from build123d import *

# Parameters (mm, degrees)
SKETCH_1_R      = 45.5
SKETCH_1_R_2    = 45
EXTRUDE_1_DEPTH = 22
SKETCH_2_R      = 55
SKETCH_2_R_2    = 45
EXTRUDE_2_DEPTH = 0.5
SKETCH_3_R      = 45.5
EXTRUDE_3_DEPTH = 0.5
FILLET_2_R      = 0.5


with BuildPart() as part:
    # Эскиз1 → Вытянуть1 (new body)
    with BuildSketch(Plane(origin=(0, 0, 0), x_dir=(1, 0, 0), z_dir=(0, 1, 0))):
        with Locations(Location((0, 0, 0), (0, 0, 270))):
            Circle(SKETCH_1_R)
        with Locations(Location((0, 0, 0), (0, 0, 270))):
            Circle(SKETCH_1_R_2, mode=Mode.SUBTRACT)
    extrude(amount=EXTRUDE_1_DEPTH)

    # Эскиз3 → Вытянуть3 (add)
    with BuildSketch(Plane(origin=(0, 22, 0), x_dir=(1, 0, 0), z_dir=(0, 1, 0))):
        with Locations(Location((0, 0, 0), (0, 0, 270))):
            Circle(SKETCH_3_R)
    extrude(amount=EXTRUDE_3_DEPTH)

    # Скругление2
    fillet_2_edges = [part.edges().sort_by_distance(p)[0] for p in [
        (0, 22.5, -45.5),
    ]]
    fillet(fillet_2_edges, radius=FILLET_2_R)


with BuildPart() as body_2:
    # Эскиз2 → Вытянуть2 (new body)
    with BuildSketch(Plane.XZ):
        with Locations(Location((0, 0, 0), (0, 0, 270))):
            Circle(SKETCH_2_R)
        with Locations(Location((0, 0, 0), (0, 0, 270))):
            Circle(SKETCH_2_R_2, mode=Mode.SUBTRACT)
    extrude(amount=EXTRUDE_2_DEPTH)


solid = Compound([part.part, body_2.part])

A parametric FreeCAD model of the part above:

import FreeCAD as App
import Part
import Sketcher

V = App.Vector


def edges_at(feature, points):
    """Names of the edges that pass closest to the given points."""
    edges = feature.Shape.Edges
    near = lambda p: min(range(len(edges)), key=lambda i: edges[i].distToShape(Part.Vertex(*p))[0])
    return sorted({f"Edge{near(p) + 1}" for p in points})

doc = App.newDocument("Part")
params = doc.addObject("Spreadsheet::Sheet", "Params")
for row, (alias, value) in enumerate([
    ("sketch1_diameter", "91 mm"),
    ("sketch1_diameter2", "90 mm"),
    ("pad1_length", "22 mm"),
    ("sketch2_diameter", "91 mm"),
    ("pad2_length", "0.5 mm"),
    ("fillet_radius", "0.5 mm"),
    ("sketch3_diameter", "110 mm"),
    ("sketch3_diameter2", "90 mm"),
    ("pad3_length", "0.5 mm"),
], start=1):
    params.set(f"A{row}", alias)
    params.set(f"B{row}", "=" + value)
    params.setAlias(f"B{row}", alias)

body = doc.addObject("PartDesign::Body", "Body")

# Sketch on XZ plane
sketch1 = body.newObject("Sketcher::SketchObject", "Sketch")
sketch1.AttachmentSupport = (doc.getObject("XZ_Plane"), [""])
sketch1.MapMode = "FlatFace"
sketch1.addGeometry(Part.Circle(V(0, 0, 0), V(0, 0, 1), 46), False)
sketch1.addGeometry(Part.Circle(V(0, 0, 0), V(0, 0, 1), 45), False)
sketch1.addConstraint(Sketcher.Constraint("Coincident", 0, 3, -1, 1))
sketch1.addConstraint(Sketcher.Constraint("Coincident", 1, 3, -1, 1))
sketch1.addConstraint(Sketcher.Constraint("Diameter", 0, 91.0))
sketch1.addConstraint(Sketcher.Constraint("Diameter", 1, 90.0))
sketch1.setExpression("Constraints[2]", "Params.sketch1_diameter")
sketch1.setExpression("Constraints[3]", "Params.sketch1_diameter2")
pad1 = body.newObject("PartDesign::Pad", "Pad")
pad1.Profile = sketch1
pad1.setExpression("Length", "Params.pad1_length")
pad1.Reversed = True

# Sketch on XZ plane
sketch2 = body.newObject("Sketcher::SketchObject", "Sketch001")
sketch2.AttachmentSupport = (doc.getObject("XZ_Plane"), [""])
sketch2.MapMode = "FlatFace"
sketch2.AttachmentOffset = App.Placement(V(0, 0, -22), App.Rotation())
sketch2.addGeometry(Part.Circle(V(0, 0, 0), V(0, 0, 1), 46), False)
sketch2.addConstraint(Sketcher.Constraint("Coincident", 0, 3, -1, 1))
sketch2.addConstraint(Sketcher.Constraint("Diameter", 0, 91.0))
sketch2.setExpression("Constraints[1]", "Params.sketch2_diameter")
pad2 = body.newObject("PartDesign::Pad", "Pad001")
pad2.Profile = sketch2
pad2.setExpression("Length", "Params.pad2_length")
pad2.Reversed = True
doc.recompute()

fillet = body.newObject("PartDesign::Fillet", "Fillet")
fillet.Base = (pad2, edges_at(pad2, [(0, 22.5, -45.5)]))
fillet.setExpression("Radius", "Params.fillet_radius")
body2 = doc.addObject("PartDesign::Body", "Body001")

# Sketch on XZ plane
sketch3 = body2.newObject("Sketcher::SketchObject", "Sketch002")
sketch3.AttachmentSupport = (doc.getObject("XZ_Plane001"), [""])
sketch3.MapMode = "FlatFace"
sketch3.addGeometry(Part.Circle(V(0, 0, 0), V(0, 0, 1), 55), False)
sketch3.addGeometry(Part.Circle(V(0, 0, 0), V(0, 0, 1), 45), False)
sketch3.addConstraint(Sketcher.Constraint("Coincident", 0, 3, -1, 1))
sketch3.addConstraint(Sketcher.Constraint("Coincident", 1, 3, -1, 1))
sketch3.addConstraint(Sketcher.Constraint("Diameter", 0, 110.0))
sketch3.addConstraint(Sketcher.Constraint("Diameter", 1, 90.0))
sketch3.setExpression("Constraints[2]", "Params.sketch3_diameter")
sketch3.setExpression("Constraints[3]", "Params.sketch3_diameter2")
pad3 = body2.newObject("PartDesign::Pad", "Pad002")
pad3.Profile = sketch3
pad3.setExpression("Length", "Params.pad3_length")

doc.recompute()
